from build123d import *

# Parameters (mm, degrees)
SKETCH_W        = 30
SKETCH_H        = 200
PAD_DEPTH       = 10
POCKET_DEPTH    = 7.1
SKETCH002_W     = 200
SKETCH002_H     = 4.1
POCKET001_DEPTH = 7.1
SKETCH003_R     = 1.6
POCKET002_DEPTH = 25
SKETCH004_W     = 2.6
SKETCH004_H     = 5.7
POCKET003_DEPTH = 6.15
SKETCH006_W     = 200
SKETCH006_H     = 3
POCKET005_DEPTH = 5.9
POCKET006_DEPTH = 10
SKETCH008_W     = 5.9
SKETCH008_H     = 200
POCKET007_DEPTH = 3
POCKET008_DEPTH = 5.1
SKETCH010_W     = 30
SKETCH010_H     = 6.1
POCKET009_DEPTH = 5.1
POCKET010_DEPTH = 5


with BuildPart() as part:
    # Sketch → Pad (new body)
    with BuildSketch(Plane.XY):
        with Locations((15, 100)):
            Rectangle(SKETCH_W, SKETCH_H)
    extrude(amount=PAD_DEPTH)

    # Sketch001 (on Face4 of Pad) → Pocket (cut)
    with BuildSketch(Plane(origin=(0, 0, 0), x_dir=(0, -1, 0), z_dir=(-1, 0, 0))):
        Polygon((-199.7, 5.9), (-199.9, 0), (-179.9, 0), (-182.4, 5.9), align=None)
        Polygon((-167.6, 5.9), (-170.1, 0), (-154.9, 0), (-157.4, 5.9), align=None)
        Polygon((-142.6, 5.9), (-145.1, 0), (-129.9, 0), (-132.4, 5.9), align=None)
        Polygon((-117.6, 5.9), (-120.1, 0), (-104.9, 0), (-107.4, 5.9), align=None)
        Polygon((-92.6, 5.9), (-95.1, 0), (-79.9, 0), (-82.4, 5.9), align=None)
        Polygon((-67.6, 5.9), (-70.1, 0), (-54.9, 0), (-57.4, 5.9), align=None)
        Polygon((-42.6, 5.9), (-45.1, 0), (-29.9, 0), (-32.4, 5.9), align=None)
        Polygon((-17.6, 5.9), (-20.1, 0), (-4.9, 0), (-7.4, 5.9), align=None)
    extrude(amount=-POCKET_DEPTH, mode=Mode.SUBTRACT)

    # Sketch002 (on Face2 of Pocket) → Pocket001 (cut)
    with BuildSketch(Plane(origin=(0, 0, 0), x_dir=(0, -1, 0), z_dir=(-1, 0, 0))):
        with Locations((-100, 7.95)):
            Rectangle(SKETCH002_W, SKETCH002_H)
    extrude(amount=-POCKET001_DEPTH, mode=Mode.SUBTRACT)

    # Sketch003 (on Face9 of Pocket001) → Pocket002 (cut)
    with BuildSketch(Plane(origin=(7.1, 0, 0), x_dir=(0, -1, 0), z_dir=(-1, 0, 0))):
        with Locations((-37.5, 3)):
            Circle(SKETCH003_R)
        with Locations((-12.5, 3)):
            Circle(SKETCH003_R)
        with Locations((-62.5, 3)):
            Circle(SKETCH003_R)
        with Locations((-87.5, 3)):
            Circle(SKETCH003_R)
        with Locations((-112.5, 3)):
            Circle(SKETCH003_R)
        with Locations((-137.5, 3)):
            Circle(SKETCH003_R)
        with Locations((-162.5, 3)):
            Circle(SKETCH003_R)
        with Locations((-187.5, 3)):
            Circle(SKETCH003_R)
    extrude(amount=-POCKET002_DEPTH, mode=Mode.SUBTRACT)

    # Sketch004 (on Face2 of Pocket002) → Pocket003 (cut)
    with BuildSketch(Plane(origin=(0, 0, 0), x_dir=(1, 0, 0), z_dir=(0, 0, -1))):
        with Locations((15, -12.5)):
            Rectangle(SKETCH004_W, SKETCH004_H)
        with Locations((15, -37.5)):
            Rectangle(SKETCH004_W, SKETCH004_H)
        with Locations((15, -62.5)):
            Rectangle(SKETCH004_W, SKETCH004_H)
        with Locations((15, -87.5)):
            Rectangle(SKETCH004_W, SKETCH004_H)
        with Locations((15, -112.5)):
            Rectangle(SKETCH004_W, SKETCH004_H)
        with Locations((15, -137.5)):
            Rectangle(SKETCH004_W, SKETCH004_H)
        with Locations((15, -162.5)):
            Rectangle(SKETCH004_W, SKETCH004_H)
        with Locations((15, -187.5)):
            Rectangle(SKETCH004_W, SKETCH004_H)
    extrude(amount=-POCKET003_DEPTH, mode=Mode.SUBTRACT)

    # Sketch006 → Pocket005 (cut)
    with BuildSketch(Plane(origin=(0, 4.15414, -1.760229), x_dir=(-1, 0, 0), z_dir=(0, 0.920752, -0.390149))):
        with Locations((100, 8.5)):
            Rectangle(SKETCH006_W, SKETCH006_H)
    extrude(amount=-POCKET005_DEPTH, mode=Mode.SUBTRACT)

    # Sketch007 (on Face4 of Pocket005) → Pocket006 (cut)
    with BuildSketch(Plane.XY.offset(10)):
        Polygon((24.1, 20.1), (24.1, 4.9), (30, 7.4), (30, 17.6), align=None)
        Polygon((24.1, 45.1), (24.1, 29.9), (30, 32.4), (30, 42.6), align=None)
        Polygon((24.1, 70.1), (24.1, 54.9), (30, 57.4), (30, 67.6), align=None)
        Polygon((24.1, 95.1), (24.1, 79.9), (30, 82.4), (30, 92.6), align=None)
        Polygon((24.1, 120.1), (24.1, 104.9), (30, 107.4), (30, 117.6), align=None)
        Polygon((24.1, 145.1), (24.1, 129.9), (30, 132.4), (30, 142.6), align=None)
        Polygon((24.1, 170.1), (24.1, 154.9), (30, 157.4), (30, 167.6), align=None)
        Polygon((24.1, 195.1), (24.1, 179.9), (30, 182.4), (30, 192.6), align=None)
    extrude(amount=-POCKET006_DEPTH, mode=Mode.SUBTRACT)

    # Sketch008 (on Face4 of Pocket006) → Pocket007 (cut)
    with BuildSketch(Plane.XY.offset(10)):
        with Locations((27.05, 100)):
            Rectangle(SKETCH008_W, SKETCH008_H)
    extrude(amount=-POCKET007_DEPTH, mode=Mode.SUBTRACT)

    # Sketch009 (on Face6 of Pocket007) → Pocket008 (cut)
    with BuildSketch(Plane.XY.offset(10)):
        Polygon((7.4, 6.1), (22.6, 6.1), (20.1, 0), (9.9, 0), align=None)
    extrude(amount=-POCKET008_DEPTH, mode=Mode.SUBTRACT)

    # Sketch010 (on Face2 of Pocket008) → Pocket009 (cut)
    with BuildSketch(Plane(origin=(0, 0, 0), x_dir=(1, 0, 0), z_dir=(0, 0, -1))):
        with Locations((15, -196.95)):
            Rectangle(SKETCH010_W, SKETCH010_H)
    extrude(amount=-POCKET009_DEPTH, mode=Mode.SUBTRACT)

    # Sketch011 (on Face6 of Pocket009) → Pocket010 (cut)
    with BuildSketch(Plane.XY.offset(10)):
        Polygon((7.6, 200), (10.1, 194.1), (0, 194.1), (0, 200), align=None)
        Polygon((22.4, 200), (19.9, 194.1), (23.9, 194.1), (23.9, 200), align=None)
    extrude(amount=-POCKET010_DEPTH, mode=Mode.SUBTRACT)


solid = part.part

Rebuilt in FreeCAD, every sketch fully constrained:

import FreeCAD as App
import Part
import Sketcher
Q = App.Units.Quantity

doc = App.newDocument("Part")
body = doc.addObject("PartDesign::Body", "Body")

# Sketch on XY plane
sketch1 = body.newObject("Sketcher::SketchObject", "Sketch")
sketch1.AttachmentSupport = (doc.getObject("XY_Plane"), [""])
sketch1.MapMode = "FlatFace"
sketch1.addGeometry(Part.LineSegment(App.Vector(0, 200, 0), App.Vector(0, 0, 0)), False)
sketch1.addGeometry(Part.LineSegment(App.Vector(0, 0, 0), App.Vector(30, 0, 0)), False)
sketch1.addGeometry(Part.LineSegment(App.Vector(30, 0, 0), App.Vector(30, 200, 0)), False)
sketch1.addGeometry(Part.LineSegment(App.Vector(30, 200, 0), App.Vector(0, 200, 0)), False)
sketch1.addConstraint(Sketcher.Constraint("Coincident", 0, 2, 1, 1))
sketch1.addConstraint(Sketcher.Constraint("Coincident", 1, 2, 2, 1))
sketch1.addConstraint(Sketcher.Constraint("Coincident", 2, 2, 3, 1))
sketch1.addConstraint(Sketcher.Constraint("Coincident", 3, 2, 0, 1))
sketch1.addConstraint(Sketcher.Constraint("Vertical", 0))
sketch1.addConstraint(Sketcher.Constraint("Horizontal", 1))
sketch1.addConstraint(Sketcher.Constraint("Vertical", 2))
sketch1.addConstraint(Sketcher.Constraint("Horizontal", 3))
sketch1.addConstraint(Sketcher.Constraint("Coincident", 0, 2, -1, 1))
sketch1.addConstraint(Sketcher.Constraint("DistanceX", 1, 1, 1, 2, Q("30 mm")))
sketch1.addConstraint(Sketcher.Constraint("DistanceY", 0, 2, 0, 1, Q("200 mm")))
pad1 = body.newObject("PartDesign::Pad", "Pad")
pad1.Profile = sketch1
pad1.Length = 10

# Sketch on YZ plane
sketch2 = body.newObject("Sketcher::SketchObject", "Sketch001")
sketch2.AttachmentSupport = (doc.getObject("YZ_Plane"), [""])
sketch2.MapMode = "FlatFace"
sketch2.addGeometry(Part.LineSegment(App.Vector(200, 6, 0), App.Vector(200, 0, 0)), False)
sketch2.addGeometry(Part.LineSegment(App.Vector(200, 0, 0), App.Vector(180, 0, 0)), False)
sketch2.addGeometry(Part.LineSegment(App.Vector(180, 0, 0), App.Vector(182, 6, 0)), False)
sketch2.addGeometry(Part.LineSegment(App.Vector(182, 6, 0), App.Vector(200, 6, 0)), False)
sketch2.addGeometry(Part.LineSegment(App.Vector(168, 6, 0), App.Vector(170, 0, 0)), False)
sketch2.addGeometry(Part.LineSegment(App.Vector(170, 0, 0), App.Vector(155, 0, 0)), False)
sketch2.addGeometry(Part.LineSegment(App.Vector(155, 0, 0), App.Vector(157, 6, 0)), False)
sketch2.addGeometry(Part.LineSegment(App.Vector(157, 6, 0), App.Vector(168, 6, 0)), False)
sketch2.addGeometry(Part.LineSegment(App.Vector(143, 6, 0), App.Vector(145, 0, 0)), False)
sketch2.addGeometry(Part.LineSegment(App.Vector(145, 0, 0), App.Vector(130, 0, 0)), False)
sketch2.addGeometry(Part.LineSegment(App.Vector(130, 0, 0), App.Vector(132, 6, 0)), False)
sketch2.addGeometry(Part.LineSegment(App.Vector(132, 6, 0), App.Vector(143, 6, 0)), False)
sketch2.addGeometry(Part.LineSegment(App.Vector(118, 6, 0), App.Vector(120, 0, 0)), False)
sketch2.addGeometry(Part.LineSegment(App.Vector(120, 0, 0), App.Vector(105, 0, 0)), False)
sketch2.addGeometry(Part.LineSegment(App.Vector(105, 0, 0), App.Vector(107, 6, 0)), False)
sketch2.addGeometry(Part.LineSegment(App.Vector(107, 6, 0), App.Vector(118, 6, 0)), False)
sketch2.addGeometry(Part.LineSegment(App.Vector(93, 6, 0), App.Vector(95, 0, 0)), False)
sketch2.addGeometry(Part.LineSegment(App.Vector(95, 0, 0), App.Vector(80, 0, 0)), False)
sketch2.addGeometry(Part.LineSegment(App.Vector(80, 0, 0), App.Vector(82, 6, 0)), False)
sketch2.addGeometry(Part.LineSegment(App.Vector(82, 6, 0), App.Vector(93, 6, 0)), False)
sketch2.addGeometry(Part.LineSegment(App.Vector(68, 6, 0), App.Vector(70, 0, 0)), False)
sketch2.addGeometry(Part.LineSegment(App.Vector(70, 0, 0), App.Vector(55, 0, 0)), False)
sketch2.addGeometry(Part.LineSegment(App.Vector(55, 0, 0), App.Vector(57, 6, 0)), False)
sketch2.addGeometry(Part.LineSegment(App.Vector(57, 6, 0), App.Vector(68, 6, 0)), False)
sketch2.addGeometry(Part.LineSegment(App.Vector(43, 6, 0), App.Vector(45, 0, 0)), False)
sketch2.addGeometry(Part.LineSegment(App.Vector(45, 0, 0), App.Vector(30, 0, 0)), False)
sketch2.addGeometry(Part.LineSegment(App.Vector(30, 0, 0), App.Vector(32, 6, 0)), False)
sketch2.addGeometry(Part.LineSegment(App.Vector(32, 6, 0), App.Vector(43, 6, 0)), False)
sketch2.addGeometry(Part.LineSegment(App.Vector(18, 6, 0), App.Vector(20, 0, 0)), False)
sketch2.addGeometry(Part.LineSegment(App.Vector(20, 0, 0), App.Vector(5, 0, 0)), False)
sketch2.addGeometry(Part.LineSegment(App.Vector(5, 0, 0), App.Vector(7, 6, 0)), False)
sketch2.addGeometry(Part.LineSegment(App.Vector(7, 6, 0), App.Vector(18, 6, 0)), False)
sketch2.addConstraint(Sketcher.Constraint("Coincident", 0, 2, 1, 1))
sketch2.addConstraint(Sketcher.Constraint("Coincident", 1, 2, 2, 1))
sketch2.addConstraint(Sketcher.Constraint("Coincident", 2, 2, 3, 1))
sketch2.addConstraint(Sketcher.Constraint("Coincident", 3, 2, 0, 1))
sketch2.addConstraint(Sketcher.Constraint("Coincident", 4, 2, 5, 1))
sketch2.addConstraint(Sketcher.Constraint("Coincident", 5, 2, 6, 1))
sketch2.addConstraint(Sketcher.Constraint("Coincident", 6, 2, 7, 1))
sketch2.addConstraint(Sketcher.Constraint("Coincident", 7, 2, 4, 1))
sketch2.addConstraint(Sketcher.Constraint("Coincident", 8, 2, 9, 1))
sketch2.addConstraint(Sketcher.Constraint("Coincident", 9, 2, 10, 1))
sketch2.addConstraint(Sketcher.Constraint("Coincident", 10, 2, 11, 1))
sketch2.addConstraint(Sketcher.Constraint("Coincident", 11, 2, 8, 1))
sketch2.addConstraint(Sketcher.Constraint("Coincident", 12, 2, 13, 1))
sketch2.addConstraint(Sketcher.Constraint("Coincident", 13, 2, 14, 1))
sketch2.addConstraint(Sketcher.Constraint("Coincident", 14, 2, 15, 1))
sketch2.addConstraint(Sketcher.Constraint("Coincident", 15, 2, 12, 1))
sketch2.addConstraint(Sketcher.Constraint("Coincident", 16, 2, 17, 1))
sketch2.addConstraint(Sketcher.Constraint("Coincident", 17, 2, 18, 1))
sketch2.addConstraint(Sketcher.Constraint("Coincident", 18, 2, 19, 1))
sketch2.addConstraint(Sketcher.Constraint("Coincident", 19, 2, 16, 1))
sketch2.addConstraint(Sketcher.Constraint("Coincident", 20, 2, 21, 1))
sketch2.addConstraint(Sketcher.Constraint("Coincident", 21, 2, 22, 1))
sketch2.addConstraint(Sketcher.Constraint("Coincident", 22, 2, 23, 1))
sketch2.addConstraint(Sketcher.Constraint("Coincident", 23, 2, 20, 1))
sketch2.addConstraint(Sketcher.Constraint("Coincident", 24, 2, 25, 1))
sketch2.addConstraint(Sketcher.Constraint("Coincident", 25, 2, 26, 1))
sketch2.addConstraint(Sketcher.Constraint("Coincident", 26, 2, 27, 1))
sketch2.addConstraint(Sketcher.Constraint("Coincident", 27, 2, 24, 1))
sketch2.addConstraint(Sketcher.Constraint("Coincident", 28, 2, 29, 1))
sketch2.addConstraint(Sketcher.Constraint("Coincident", 29, 2, 30, 1))
sketch2.addConstraint(Sketcher.Constraint("Coincident", 30, 2, 31, 1))
sketch2.addConstraint(Sketcher.Constraint("Coincident", 31, 2, 28, 1))
sketch2.addConstraint(Sketcher.Constraint("Horizontal", 1))
sketch2.addConstraint(Sketcher.Constraint("Horizontal", 3))
sketch2.addConstraint(Sketcher.Constraint("Horizontal", 5))
sketch2.addConstraint(Sketcher.Constraint("Horizontal", 7))
sketch2.addConstraint(Sketcher.Constraint("Horizontal", 9))
sketch2.addConstraint(Sketcher.Constraint("Horizontal", 11))
sketch2.addConstraint(Sketcher.Constraint("Horizontal", 13))
sketch2.addConstraint(Sketcher.Constraint("Horizontal", 15))
sketch2.addConstraint(Sketcher.Constraint("Horizontal", 17))
sketch2.addConstraint(Sketcher.Constraint("Horizontal", 19))
sketch2.addConstraint(Sketcher.Constraint("Horizontal", 21))
sketch2.addConstraint(Sketcher.Constraint("Horizontal", 23))
sketch2.addConstraint(Sketcher.Constraint("Horizontal", 25))
sketch2.addConstraint(Sketcher.Constraint("Horizontal", 27))
sketch2.addConstraint(Sketcher.Constraint("Horizontal", 29))
sketch2.addConstraint(Sketcher.Constraint("Horizontal", 31))
sketch2.addConstraint(Sketcher.Constraint("PointOnObject", 0, 2, -1))
sketch2.addConstraint(Sketcher.Constraint("PointOnObject", 4, 2, -1))
sketch2.addConstraint(Sketcher.Constraint("PointOnObject", 8, 2, -1))
sketch2.addConstraint(Sketcher.Constraint("PointOnObject", 12, 2, -1))
sketch2.addConstraint(Sketcher.Constraint("PointOnObject", 16, 2, -1))
sketch2.addConstraint(Sketcher.Constraint("PointOnObject", 20, 2, -1))
sketch2.addConstraint(Sketcher.Constraint("PointOnObject", 24, 2, -1))
sketch2.addConstraint(Sketcher.Constraint("PointOnObject", 28, 2, -1))
sketch2.addConstraint(Sketcher.Constraint("Parallel", 2, 6))
sketch2.addConstraint(Sketcher.Constraint("Parallel", 4, 8))
sketch2.addConstraint(Sketcher.Constraint("Parallel", 6, 10))
sketch2.addConstraint(Sketcher.Constraint("Parallel", 8, 12))
sketch2.addConstraint(Sketcher.Constraint("Parallel", 10, 14))
sketch2.addConstraint(Sketcher.Constraint("Parallel", 12, 16))
sketch2.addConstraint(Sketcher.Constraint("Parallel", 14, 18))
sketch2.addConstraint(Sketcher.Constraint("Parallel", 16, 20))
sketch2.addConstraint(Sketcher.Constraint("Parallel", 18, 22))
sketch2.addConstraint(Sketcher.Constraint("Parallel", 20, 24))
sketch2.addConstraint(Sketcher.Constraint("Parallel", 22, 26))
sketch2.addConstraint(Sketcher.Constraint("Parallel", 24, 28))
sketch2.addConstraint(Sketcher.Constraint("Parallel", 26, 30))
sketch2.addConstraint(Sketcher.Constraint("Horizontal", 3, 2, 6, 2))
sketch2.addConstraint(Sketcher.Constraint("Horizontal", 7, 2, 10, 2))
sketch2.addConstraint(Sketcher.Constraint("Horizontal", 11, 2, 14, 2))
sketch2.addConstraint(Sketcher.Constraint("Horizontal", 15, 2, 18, 2))
sketch2.addConstraint(Sketcher.Constraint("Horizontal", 19, 2, 22, 2))
sketch2.addConstraint(Sketcher.Constraint("Horizontal", 23, 2, 26, 2))
sketch2.addConstraint(Sketcher.Constraint("Horizontal", 27, 2, 30, 2))
sketch2.addConstraint(Sketcher.Constraint("Equal", 5, 9))
sketch2.addConstraint(Sketcher.Constraint("Equal", 9, 13))
sketch2.addConstraint(Sketcher.Constraint("Equal", 13, 17))
sketch2.addConstraint(Sketcher.Constraint("Equal", 17, 21))
sketch2.addConstraint(Sketcher.Constraint("Equal", 21, 25))
sketch2.addConstraint(Sketcher.Constraint("Equal", 25, 29))
sketch2.addConstraint(Sketcher.Constraint("Equal", 2, 4))
sketch2.addConstraint(Sketcher.Constraint("DistanceX", 1, 2, 1, 1, Q("20 mm")))
sketch2.addConstraint(Sketcher.Constraint("DistanceX", 3, 1, 3, 2, Q("17.3 mm")))
sketch2.addConstraint(Sketcher.Constraint("DistanceX", 5, 2, 5, 1, Q("15.2 mm")))
sketch2.addConstraint(Sketcher.Constraint("DistanceX", 7, 1, 7, 2, Q("10.2 mm")))
sketch2.addConstraint(Sketcher.Constraint("DistanceX", 5, 2, 1, 2, Q("25 mm")))
sketch2.addConstraint(Sketcher.Constraint("DistanceX", 8, 2, 4, 2, Q("25 mm")))
sketch2.addConstraint(Sketcher.Constraint("DistanceX", 12, 2, 8, 2, Q("25 mm")))
sketch2.addConstraint(Sketcher.Constraint("DistanceX", 16, 2, 12, 2, Q("25 mm")))
sketch2.addConstraint(Sketcher.Constraint("DistanceX", 20, 2, 16, 2, Q("25 mm")))
sketch2.addConstraint(Sketcher.Constraint("DistanceX", 24, 2, 20, 2, Q("25 mm")))
sketch2.addConstraint(Sketcher.Constraint("DistanceX", 28, 2, 24, 2, Q("25 mm")))
sketch2.addConstraint(Sketcher.Constraint("DistanceX", -1, 1, 0, 2, Q("199.9 mm")))
sketch2.addConstraint(Sketcher.Constraint("DistanceY", -1, 1, 2, 2, Q("5.9 mm")))
pocket1 = body.newObject("PartDesign::Pocket", "Pocket")
pocket1.Profile = sketch2
pocket1.Length = 7.1
pocket1.Reversed = True

# Sketch on YZ plane
sketch3 = body.newObject("Sketcher::SketchObject", "Sketch002")
sketch3.AttachmentSupport = (doc.getObject("YZ_Plane"), [""])
sketch3.MapMode = "FlatFace"
sketch3.addGeometry(Part.LineSegment(App.Vector(200, 10, 0), App.Vector(200, 5.9, 0)), False)
sketch3.addGeometry(Part.LineSegment(App.Vector(200, 5.9, 0), App.Vector(0, 5.9, 0)), False)
sketch3.addGeometry(Part.LineSegment(App.Vector(0, 5.9, 0), App.Vector(0, 10, 0)), False)
sketch3.addGeometry(Part.LineSegment(App.Vector(0, 10, 0), App.Vector(200, 10, 0)), False)
sketch3.addConstraint(Sketcher.Constraint("Coincident", 0, 2, 1, 1))
sketch3.addConstraint(Sketcher.Constraint("Coincident", 1, 2, 2, 1))
sketch3.addConstraint(Sketcher.Constraint("Coincident", 2, 2, 3, 1))
sketch3.addConstraint(Sketcher.Constraint("Coincident", 3, 2, 0, 1))
sketch3.addConstraint(Sketcher.Constraint("Vertical", 0))
sketch3.addConstraint(Sketcher.Constraint("Horizontal", 1))
sketch3.addConstraint(Sketcher.Constraint("Vertical", 2))
sketch3.addConstraint(Sketcher.Constraint("Horizontal", 3))
sketch3.addConstraint(Sketcher.Constraint("PointOnObject", 1, 2, -2))
sketch3.addConstraint(Sketcher.Constraint("DistanceX", 1, 2, 1, 1, Q("200 mm")))
sketch3.addConstraint(Sketcher.Constraint("DistanceY", 0, 2, 0, 1, Q("4.1 mm")))
sketch3.addConstraint(Sketcher.Constraint("DistanceY", -1, 1, 2, 2, Q("10 mm")))
pocket2 = body.newObject("PartDesign::Pocket", "Pocket001")
pocket2.Profile = sketch3
pocket2.Length = 7.1
pocket2.Reversed = True

# Sketch on YZ plane
sketch4 = body.newObject("Sketcher::SketchObject", "Sketch003")
sketch4.AttachmentSupport = (doc.getObject("YZ_Plane"), [""])
sketch4.MapMode = "FlatFace"
sketch4.AttachmentOffset = App.Placement(App.Vector(0, 0, 7.1), App.Rotation())
sketch4.addGeometry(Part.Circle(App.Vector(37.5, 3, 0), App.Vector(0, 0, 1), 1.6), False)
sketch4.addGeometry(Part.Circle(App.Vector(12.5, 3, 0), App.Vector(0, 0, 1), 1.6), False)
sketch4.addGeometry(Part.Circle(App.Vector(62.5, 3, 0), App.Vector(0, 0, 1), 1.6), False)
sketch4.addGeometry(Part.Circle(App.Vector(87.5, 3, 0), App.Vector(0, 0, 1), 1.6), False)
sketch4.addGeometry(Part.Circle(App.Vector(112.5, 3, 0), App.Vector(0, 0, 1), 1.6), False)
sketch4.addGeometry(Part.Circle(App.Vector(137.5, 3, 0), App.Vector(0, 0, 1), 1.6), False)
sketch4.addGeometry(Part.Circle(App.Vector(162.5, 3, 0), App.Vector(0, 0, 1), 1.6), False)
sketch4.addGeometry(Part.Circle(App.Vector(187.5, 3, 0), App.Vector(0, 0, 1), 1.6), False)
sketch4.addConstraint(Sketcher.Constraint("Equal", 0, 1))
sketch4.addConstraint(Sketcher.Constraint("Equal", 1, 2))
sketch4.addConstraint(Sketcher.Constraint("Equal", 2, 3))
sketch4.addConstraint(Sketcher.Constraint("Equal", 3, 4))
sketch4.addConstraint(Sketcher.Constraint("Equal", 4, 5))
sketch4.addConstraint(Sketcher.Constraint("Equal", 5, 6))
sketch4.addConstraint(Sketcher.Constraint("Equal", 6, 7))
sketch4.addConstraint(Sketcher.Constraint("Horizontal", 0, 3, 1, 3))
sketch4.addConstraint(Sketcher.Constraint("Horizontal", 1, 3, 2, 3))
sketch4.addConstraint(Sketcher.Constraint("Horizontal", 2, 3, 3, 3))
sketch4.addConstraint(Sketcher.Constraint("Horizontal", 3, 3, 4, 3))
sketch4.addConstraint(Sketcher.Constraint("Horizontal", 4, 3, 5, 3))
sketch4.addConstraint(Sketcher.Constraint("Horizontal", 5, 3, 6, 3))
sketch4.addConstraint(Sketcher.Constraint("Horizontal", 6, 3, 7, 3))
sketch4.addConstraint(Sketcher.Constraint("Diameter", 0, Q("3.2 mm")))
sketch4.addConstraint(Sketcher.Constraint("DistanceY", -1, 1, 0, 3, Q("3 mm")))
sketch4.addConstraint(Sketcher.Constraint("DistanceX", 1, 3, 0, 3, Q("25 mm")))
sketch4.addConstraint(Sketcher.Constraint("DistanceX", 0, 3, 2, 3, Q("25 mm")))
sketch4.addConstraint(Sketcher.Constraint("DistanceX", 2, 3, 3, 3, Q("25 mm")))
sketch4.addConstraint(Sketcher.Constraint("DistanceX", 3, 3, 4, 3, Q("25 mm")))
sketch4.addConstraint(Sketcher.Constraint("DistanceX", 4, 3, 5, 3, Q("25 mm")))
sketch4.addConstraint(Sketcher.Constraint("DistanceX", 5, 3, 6, 3, Q("25 mm")))
sketch4.addConstraint(Sketcher.Constraint("DistanceX", 6, 3, 7, 3, Q("25 mm")))
sketch4.addConstraint(Sketcher.Constraint("DistanceX", -1, 1, 0, 3, Q("37.5 mm")))
pocket3 = body.newObject("PartDesign::Pocket", "Pocket002")
pocket3.Profile = sketch4
pocket3.Length = 25
pocket3.Reversed = True

# Sketch on XY plane
sketch5 = body.newObject("Sketcher::SketchObject", "Sketch004")
sketch5.AttachmentSupport = (doc.getObject("XY_Plane"), [""])
sketch5.MapMode = "FlatFace"
sketch5.addGeometry(Part.LineSegment(App.Vector(13.7, 9.7, 0), App.Vector(13.7, 15.3, 0)), False)
sketch5.addGeometry(Part.LineSegment(App.Vector(13.7, 15.3, 0), App.Vector(16.3, 15.3, 0)), False)
sketch5.addGeometry(Part.LineSegment(App.Vector(16.3, 15.3, 0), App.Vector(16.3, 9.7, 0)), False)
sketch5.addGeometry(Part.LineSegment(App.Vector(16.3, 9.7, 0), App.Vector(13.7, 9.7, 0)), False)
sketch5.addGeometry(Part.LineSegment(App.Vector(13.7, 34.6, 0), App.Vector(13.7, 40.4, 0)), False)
sketch5.addGeometry(Part.LineSegment(App.Vector(13.7, 40.4, 0), App.Vector(16.3, 40.4, 0)), False)
sketch5.addGeometry(Part.LineSegment(App.Vector(16.3, 40.4, 0), App.Vector(16.3, 34.6, 0)), False)
sketch5.addGeometry(Part.LineSegment(App.Vector(16.3, 34.6, 0), App.Vector(13.7, 34.6, 0)), False)
sketch5.addGeometry(Part.LineSegment(App.Vector(13.7, 59.6, 0), App.Vector(13.7, 65.3, 0)), False)
sketch5.addGeometry(Part.LineSegment(App.Vector(13.7, 65.3, 0), App.Vector(16.3, 65.3, 0)), False)
sketch5.addGeometry(Part.LineSegment(App.Vector(16.3, 65.3, 0), App.Vector(16.3, 59.6, 0)), False)
sketch5.addGeometry(Part.LineSegment(App.Vector(16.3, 59.6, 0), App.Vector(13.7, 59.6, 0)), False)
sketch5.addGeometry(Part.LineSegment(App.Vector(13.7, 84.7, 0), App.Vector(13.7, 90.3, 0)), False)
sketch5.addGeometry(Part.LineSegment(App.Vector(13.7, 90.3, 0), App.Vector(16.3, 90.3, 0)), False)
sketch5.addGeometry(Part.LineSegment(App.Vector(16.3, 90.3, 0), App.Vector(16.3, 84.7, 0)), False)
sketch5.addGeometry(Part.LineSegment(App.Vector(16.3, 84.7, 0), App.Vector(13.7, 84.7, 0)), False)
sketch5.addGeometry(Part.LineSegment(App.Vector(13.7, 109.7, 0), App.Vector(13.7, 115.3, 0)), False)
sketch5.addGeometry(Part.LineSegment(App.Vector(13.7, 115.3, 0), App.Vector(16.3, 115.3, 0)), False)
sketch5.addGeometry(Part.LineSegment(App.Vector(16.3, 115.3, 0), App.Vector(16.3, 109.7, 0)), False)
sketch5.addGeometry(Part.LineSegment(App.Vector(16.3, 109.7, 0), App.Vector(13.7, 109.7, 0)), False)
sketch5.addGeometry(Part.LineSegment(App.Vector(13.7, 134.7, 0), App.Vector(13.7, 140.3, 0)), False)
sketch5.addGeometry(Part.LineSegment(App.Vector(13.7, 140.3, 0), App.Vector(16.3, 140.3, 0)), False)
sketch5.addGeometry(Part.LineSegment(App.Vector(16.3, 140.3, 0), App.Vector(16.3, 134.7, 0)), False)
sketch5.addGeometry(Part.LineSegment(App.Vector(16.3, 134.7, 0), App.Vector(13.7, 134.7, 0)), False)
sketch5.addGeometry(Part.LineSegment(App.Vector(13.7, 159.7, 0), App.Vector(13.7, 165.3, 0)), False)
sketch5.addGeometry(Part.LineSegment(App.Vector(13.7, 165.3, 0), App.Vector(16.3, 165.3, 0)), False)
sketch5.addGeometry(Part.LineSegment(App.Vector(16.3, 165.3, 0), App.Vector(16.3, 159.7, 0)), False)
sketch5.addGeometry(Part.LineSegment(App.Vector(16.3, 159.7, 0), App.Vector(13.7, 159.7, 0)), False)
sketch5.addGeometry(Part.LineSegment(App.Vector(13.7, 184.7, 0), App.Vector(13.7, 190.3, 0)), False)
sketch5.addGeometry(Part.LineSegment(App.Vector(13.7, 190.3, 0), App.Vector(16.3, 190.3, 0)), False)
sketch5.addGeometry(Part.LineSegment(App.Vector(16.3, 190.3, 0), App.Vector(16.3, 184.7, 0)), False)
sketch5.addGeometry(Part.LineSegment(App.Vector(16.3, 184.7, 0), App.Vector(13.7, 184.7, 0)), False)
sketch5.addConstraint(Sketcher.Constraint("Coincident", 0, 2, 1, 1))
sketch5.addConstraint(Sketcher.Constraint("Coincident", 1, 2, 2, 1))
sketch5.addConstraint(Sketcher.Constraint("Coincident", 2, 2, 3, 1))
sketch5.addConstraint(Sketcher.Constraint("Coincident", 3, 2, 0, 1))
sketch5.addConstraint(Sketcher.Constraint("Coincident", 4, 2, 5, 1))
sketch5.addConstraint(Sketcher.Constraint("Coincident", 5, 2, 6, 1))
sketch5.addConstraint(Sketcher.Constraint("Coincident", 6, 2, 7, 1))
sketch5.addConstraint(Sketcher.Constraint("Coincident", 7, 2, 4, 1))
sketch5.addConstraint(Sketcher.Constraint("Coincident", 8, 2, 9, 1))
sketch5.addConstraint(Sketcher.Constraint("Coincident", 9, 2, 10, 1))
sketch5.addConstraint(Sketcher.Constraint("Coincident", 10, 2, 11, 1))
sketch5.addConstraint(Sketcher.Constraint("Coincident", 11, 2, 8, 1))
sketch5.addConstraint(Sketcher.Constraint("Coincident", 12, 2, 13, 1))
sketch5.addConstraint(Sketcher.Constraint("Coincident", 13, 2, 14, 1))
sketch5.addConstraint(Sketcher.Constraint("Coincident", 14, 2, 15, 1))
sketch5.addConstraint(Sketcher.Constraint("Coincident", 15, 2, 12, 1))
sketch5.addConstraint(Sketcher.Constraint("Coincident", 16, 2, 17, 1))
sketch5.addConstraint(Sketcher.Constraint("Coincident", 17, 2, 18, 1))
sketch5.addConstraint(Sketcher.Constraint("Coincident", 18, 2, 19, 1))
sketch5.addConstraint(Sketcher.Constraint("Coincident", 19, 2, 16, 1))
sketch5.addConstraint(Sketcher.Constraint("Coincident", 20, 2, 21, 1))
sketch5.addConstraint(Sketcher.Constraint("Coincident", 21, 2, 22, 1))
sketch5.addConstraint(Sketcher.Constraint("Coincident", 22, 2, 23, 1))
sketch5.addConstraint(Sketcher.Constraint("Coincident", 23, 2, 20, 1))
sketch5.addConstraint(Sketcher.Constraint("Coincident", 24, 2, 25, 1))
sketch5.addConstraint(Sketcher.Constraint("Coincident", 25, 2, 26, 1))
sketch5.addConstraint(Sketcher.Constraint("Coincident", 26, 2, 27, 1))
sketch5.addConstraint(Sketcher.Constraint("Coincident", 27, 2, 24, 1))
sketch5.addConstraint(Sketcher.Constraint("Coincident", 28, 2, 29, 1))
sketch5.addConstraint(Sketcher.Constraint("Coincident", 29, 2, 30, 1))
sketch5.addConstraint(Sketcher.Constraint("Coincident", 30, 2, 31, 1))
sketch5.addConstraint(Sketcher.Constraint("Coincident", 31, 2, 28, 1))
sketch5.addConstraint(Sketcher.Constraint("Vertical", 0))
sketch5.addConstraint(Sketcher.Constraint("Horizontal", 1))
sketch5.addConstraint(Sketcher.Constraint("Vertical", 2))
sketch5.addConstraint(Sketcher.Constraint("Horizontal", 3))
sketch5.addConstraint(Sketcher.Constraint("Vertical", 4))
sketch5.addConstraint(Sketcher.Constraint("Horizontal", 5))
sketch5.addConstraint(Sketcher.Constraint("Vertical", 6))
sketch5.addConstraint(Sketcher.Constraint("Horizontal", 7))
sketch5.addConstraint(Sketcher.Constraint("Vertical", 8))
sketch5.addConstraint(Sketcher.Constraint("Horizontal", 9))
sketch5.addConstraint(Sketcher.Constraint("Vertical", 10))
sketch5.addConstraint(Sketcher.Constraint("Horizontal", 11))
sketch5.addConstraint(Sketcher.Constraint("Vertical", 12))
sketch5.addConstraint(Sketcher.Constraint("Horizontal", 13))
sketch5.addConstraint(Sketcher.Constraint("Vertical", 14))
sketch5.addConstraint(Sketcher.Constraint("Horizontal", 15))
sketch5.addConstraint(Sketcher.Constraint("Vertical", 16))
sketch5.addConstraint(Sketcher.Constraint("Horizontal", 17))
sketch5.addConstraint(Sketcher.Constraint("Vertical", 18))
sketch5.addConstraint(Sketcher.Constraint("Horizontal", 19))
sketch5.addConstraint(Sketcher.Constraint("Vertical", 20))
sketch5.addConstraint(Sketcher.Constraint("Horizontal", 21))
sketch5.addConstraint(Sketcher.Constraint("Vertical", 22))
sketch5.addConstraint(Sketcher.Constraint("Horizontal", 23))
sketch5.addConstraint(Sketcher.Constraint("Vertical", 24))
sketch5.addConstraint(Sketcher.Constraint("Horizontal", 25))
sketch5.addConstraint(Sketcher.Constraint("Vertical", 26))
sketch5.addConstraint(Sketcher.Constraint("Horizontal", 27))
sketch5.addConstraint(Sketcher.Constraint("Vertical", 28))
sketch5.addConstraint(Sketcher.Constraint("Horizontal", 29))
sketch5.addConstraint(Sketcher.Constraint("Vertical", 30))
sketch5.addConstraint(Sketcher.Constraint("Horizontal", 31))
sketch5.addConstraint(Sketcher.Constraint("Vertical", 3, 2, 4, 2))
sketch5.addConstraint(Sketcher.Constraint("Vertical", 2, 2, 5, 2))
sketch5.addConstraint(Sketcher.Constraint("Vertical", 7, 2, 8, 2))
sketch5.addConstraint(Sketcher.Constraint("Vertical", 6, 2, 9, 2))
sketch5.addConstraint(Sketcher.Constraint("Vertical", 11, 2, 12, 2))
sketch5.addConstraint(Sketcher.Constraint("Vertical", 10, 2, 13, 2))
sketch5.addConstraint(Sketcher.Constraint("Vertical", 15, 2, 16, 2))
sketch5.addConstraint(Sketcher.Constraint("Vertical", 14, 2, 17, 2))
sketch5.addConstraint(Sketcher.Constraint("Vertical", 19, 2, 20, 2))
sketch5.addConstraint(Sketcher.Constraint("Vertical", 18, 2, 21, 2))
sketch5.addConstraint(Sketcher.Constraint("Vertical", 23, 2, 24, 2))
sketch5.addConstraint(Sketcher.Constraint("Vertical", 22, 2, 25, 2))
sketch5.addConstraint(Sketcher.Constraint("Vertical", 27, 2, 28, 2))
sketch5.addConstraint(Sketcher.Constraint("Vertical", 26, 2, 29, 2))
sketch5.addConstraint(Sketcher.Constraint("Equal", 2, 4))
sketch5.addConstraint(Sketcher.Constraint("Equal", 6, 8))
sketch5.addConstraint(Sketcher.Constraint("Equal", 10, 12))
sketch5.addConstraint(Sketcher.Constraint("Equal", 14, 16))
sketch5.addConstraint(Sketcher.Constraint("Equal", 18, 20))
sketch5.addConstraint(Sketcher.Constraint("Equal", 22, 24))
sketch5.addConstraint(Sketcher.Constraint("Equal", 26, 28))
sketch5.addConstraint(Sketcher.Constraint("DistanceX", 1, 1, 1, 2, Q("2.6 mm")))
sketch5.addConstraint(Sketcher.Constraint("DistanceY", 0, 1, 0, 2, Q("5.7 mm")))
sketch5.addConstraint(Sketcher.Constraint("DistanceY", 0, 2, 4, 2, Q("25 mm")))
sketch5.addConstraint(Sketcher.Constraint("DistanceY", 4, 2, 8, 2, Q("25 mm")))
sketch5.addConstraint(Sketcher.Constraint("DistanceY", 8, 2, 12, 2, Q("25 mm")))
sketch5.addConstraint(Sketcher.Constraint("DistanceY", 12, 2, 16, 2, Q("25 mm")))
sketch5.addConstraint(Sketcher.Constraint("DistanceY", 16, 2, 20, 2, Q("25 mm")))
sketch5.addConstraint(Sketcher.Constraint("DistanceY", 20, 2, 24, 2, Q("25 mm")))
sketch5.addConstraint(Sketcher.Constraint("DistanceY", 24, 2, 28, 2, Q("25 mm")))
sketch5.addConstraint(Sketcher.Constraint("DistanceX", -1, 1, 0, 2, Q("13.7 mm")))
sketch5.addConstraint(Sketcher.Constraint("DistanceY", -1, 1, 0, 2, Q("15.35 mm")))
pocket4 = body.newObject("PartDesign::Pocket", "Pocket003")
pocket4.Profile = sketch5
pocket4.Length = 6.15
pocket4.Reversed = True

# Sketch on an angled plane
sketch6 = body.newObject("Sketcher::SketchObject", "Sketch005")
sketch6.Placement = App.Placement(App.Vector(0, 4.15414, -1.760229), App.Rotation(App.Vector(-1, 0, 0), App.Vector(0, 0.390148905, 0.920751775), App.Vector(0, 0.920751775, -0.390148905), "ZXY"))
sketch6.addGeometry(Part.LineSegment(App.Vector(0, 10, 0), App.Vector(0, 7, 0)), False)
sketch6.addGeometry(Part.LineSegment(App.Vector(0, 7, 0), App.Vector(200, 7, 0)), False)
sketch6.addGeometry(Part.LineSegment(App.Vector(200, 7, 0), App.Vector(200, 10, 0)), False)
sketch6.addGeometry(Part.LineSegment(App.Vector(200, 10, 0), App.Vector(0, 10, 0)), False)
sketch6.addConstraint(Sketcher.Constraint("Coincident", 0, 2, 1, 1))
sketch6.addConstraint(Sketcher.Constraint("Coincident", 1, 2, 2, 1))
sketch6.addConstraint(Sketcher.Constraint("Coincident", 2, 2, 3, 1))
sketch6.addConstraint(Sketcher.Constraint("Coincident", 3, 2, 0, 1))
sketch6.addConstraint(Sketcher.Constraint("Vertical", 0))
sketch6.addConstraint(Sketcher.Constraint("Horizontal", 1))
sketch6.addConstraint(Sketcher.Constraint("Vertical", 2))
sketch6.addConstraint(Sketcher.Constraint("Horizontal", 3))
sketch6.addConstraint(Sketcher.Constraint("PointOnObject", 0, 2, -2))
sketch6.addConstraint(Sketcher.Constraint("DistanceX", 1, 1, 1, 2, Q("200 mm")))
sketch6.addConstraint(Sketcher.Constraint("DistanceY", 0, 2, 0, 1, Q("3 mm")))
sketch6.addConstraint(Sketcher.Constraint("DistanceY", -1, 1, 0, 2, Q("7 mm")))
pocket5 = body.newObject("PartDesign::Pocket", "Pocket004")
pocket5.Profile = sketch6
pocket5.Length = 5.9

# Sketch on XY plane
sketch7 = body.newObject("Sketcher::SketchObject", "Sketch006")
sketch7.AttachmentSupport = (doc.getObject("XY_Plane"), [""])
sketch7.MapMode = "FlatFace"
sketch7.AttachmentOffset = App.Placement(App.Vector(0, 0, 10), App.Rotation())
sketch7.addGeometry(Part.LineSegment(App.Vector(24, 20, 0), App.Vector(24, 5, 0)), False)
sketch7.addGeometry(Part.LineSegment(App.Vector(24, 5, 0), App.Vector(30, 7, 0)), False)
sketch7.addGeometry(Part.LineSegment(App.Vector(30, 7, 0), App.Vector(30, 18, 0)), False)
sketch7.addGeometry(Part.LineSegment(App.Vector(30, 18, 0), App.Vector(24, 20, 0)), False)
sketch7.addGeometry(Part.LineSegment(App.Vector(24, 45, 0), App.Vector(24, 30, 0)), False)
sketch7.addGeometry(Part.LineSegment(App.Vector(24, 30, 0), App.Vector(30, 32, 0)), False)
sketch7.addGeometry(Part.LineSegment(App.Vector(30, 32, 0), App.Vector(30, 43, 0)), False)
sketch7.addGeometry(Part.LineSegment(App.Vector(30, 43, 0), App.Vector(24, 45, 0)), False)
sketch7.addGeometry(Part.LineSegment(App.Vector(24, 70, 0), App.Vector(24, 55, 0)), False)
sketch7.addGeometry(Part.LineSegment(App.Vector(24, 55, 0), App.Vector(30, 57, 0)), False)
sketch7.addGeometry(Part.LineSegment(App.Vector(30, 57, 0), App.Vector(30, 68, 0)), False)
sketch7.addGeometry(Part.LineSegment(App.Vector(30, 68, 0), App.Vector(24, 70, 0)), False)
sketch7.addGeometry(Part.LineSegment(App.Vector(24, 95, 0), App.Vector(24, 80, 0)), False)
sketch7.addGeometry(Part.LineSegment(App.Vector(24, 80, 0), App.Vector(30, 82, 0)), False)
sketch7.addGeometry(Part.LineSegment(App.Vector(30, 82, 0), App.Vector(30, 93, 0)), False)
sketch7.addGeometry(Part.LineSegment(App.Vector(30, 93, 0), App.Vector(24, 95, 0)), False)
sketch7.addGeometry(Part.LineSegment(App.Vector(24, 120, 0), App.Vector(24, 105, 0)), False)
sketch7.addGeometry(Part.LineSegment(App.Vector(24, 105, 0), App.Vector(30, 107, 0)), False)
sketch7.addGeometry(Part.LineSegment(App.Vector(30, 107, 0), App.Vector(30, 118, 0)), False)
sketch7.addGeometry(Part.LineSegment(App.Vector(30, 118, 0), App.Vector(24, 120, 0)), False)
sketch7.addGeometry(Part.LineSegment(App.Vector(24, 145, 0), App.Vector(24, 130, 0)), False)
sketch7.addGeometry(Part.LineSegment(App.Vector(24, 130, 0), App.Vector(30, 132, 0)), False)
sketch7.addGeometry(Part.LineSegment(App.Vector(30, 132, 0), App.Vector(30, 143, 0)), False)
sketch7.addGeometry(Part.LineSegment(App.Vector(30, 143, 0), App.Vector(24, 145, 0)), False)
sketch7.addGeometry(Part.LineSegment(App.Vector(24, 170, 0), App.Vector(24, 155, 0)), False)
sketch7.addGeometry(Part.LineSegment(App.Vector(24, 155, 0), App.Vector(30, 157, 0)), False)
sketch7.addGeometry(Part.LineSegment(App.Vector(30, 157, 0), App.Vector(30, 168, 0)), False)
sketch7.addGeometry(Part.LineSegment(App.Vector(30, 168, 0), App.Vector(24, 170, 0)), False)
sketch7.addGeometry(Part.LineSegment(App.Vector(24, 195, 0), App.Vector(24, 180, 0)), False)
sketch7.addGeometry(Part.LineSegment(App.Vector(24, 180, 0), App.Vector(30, 182, 0)), False)
sketch7.addGeometry(Part.LineSegment(App.Vector(30, 182, 0), App.Vector(30, 193, 0)), False)
sketch7.addGeometry(Part.LineSegment(App.Vector(30, 193, 0), App.Vector(24, 195, 0)), False)
sketch7.addConstraint(Sketcher.Constraint("Coincident", 0, 2, 1, 1))
sketch7.addConstraint(Sketcher.Constraint("Coincident", 1, 2, 2, 1))
sketch7.addConstraint(Sketcher.Constraint("Coincident", 2, 2, 3, 1))
sketch7.addConstraint(Sketcher.Constraint("Coincident", 3, 2, 0, 1))
sketch7.addConstraint(Sketcher.Constraint("Coincident", 4, 2, 5, 1))
sketch7.addConstraint(Sketcher.Constraint("Coincident", 5, 2, 6, 1))
sketch7.addConstraint(Sketcher.Constraint("Coincident", 6, 2, 7, 1))
sketch7.addConstraint(Sketcher.Constraint("Coincident", 7, 2, 4, 1))
sketch7.addConstraint(Sketcher.Constraint("Coincident", 8, 2, 9, 1))
sketch7.addConstraint(Sketcher.Constraint("Coincident", 9, 2, 10, 1))
sketch7.addConstraint(Sketcher.Constraint("Coincident", 10, 2, 11, 1))
sketch7.addConstraint(Sketcher.Constraint("Coincident", 11, 2, 8, 1))
sketch7.addConstraint(Sketcher.Constraint("Coincident", 12, 2, 13, 1))
sketch7.addConstraint(Sketcher.Constraint("Coincident", 13, 2, 14, 1))
sketch7.addConstraint(Sketcher.Constraint("Coincident", 14, 2, 15, 1))
sketch7.addConstraint(Sketcher.Constraint("Coincident", 15, 2, 12, 1))
sketch7.addConstraint(Sketcher.Constraint("Coincident", 16, 2, 17, 1))
sketch7.addConstraint(Sketcher.Constraint("Coincident", 17, 2, 18, 1))
sketch7.addConstraint(Sketcher.Constraint("Coincident", 18, 2, 19, 1))
sketch7.addConstraint(Sketcher.Constraint("Coincident", 19, 2, 16, 1))
sketch7.addConstraint(Sketcher.Constraint("Coincident", 20, 2, 21, 1))
sketch7.addConstraint(Sketcher.Constraint("Coincident", 21, 2, 22, 1))
sketch7.addConstraint(Sketcher.Constraint("Coincident", 22, 2, 23, 1))
sketch7.addConstraint(Sketcher.Constraint("Coincident", 23, 2, 20, 1))
sketch7.addConstraint(Sketcher.Constraint("Coincident", 24, 2, 25, 1))
sketch7.addConstraint(Sketcher.Constraint("Coincident", 25, 2, 26, 1))
sketch7.addConstraint(Sketcher.Constraint("Coincident", 26, 2, 27, 1))
sketch7.addConstraint(Sketcher.Constraint("Coincident", 27, 2, 24, 1))
sketch7.addConstraint(Sketcher.Constraint("Coincident", 28, 2, 29, 1))
sketch7.addConstraint(Sketcher.Constraint("Coincident", 29, 2, 30, 1))
sketch7.addConstraint(Sketcher.Constraint("Coincident", 30, 2, 31, 1))
sketch7.addConstraint(Sketcher.Constraint("Coincident", 31, 2, 28, 1))
sketch7.addConstraint(Sketcher.Constraint("Vertical", 0))
sketch7.addConstraint(Sketcher.Constraint("Vertical", 2))
sketch7.addConstraint(Sketcher.Constraint("Vertical", 4))
sketch7.addConstraint(Sketcher.Constraint("Vertical", 6))
sketch7.addConstraint(Sketcher.Constraint("Vertical", 8))
sketch7.addConstraint(Sketcher.Constraint("Vertical", 10))
sketch7.addConstraint(Sketcher.Constraint("Vertical", 12))
sketch7.addConstraint(Sketcher.Constraint("Vertical", 14))
sketch7.addConstraint(Sketcher.Constraint("Vertical", 16))
sketch7.addConstraint(Sketcher.Constraint("Vertical", 18))
sketch7.addConstraint(Sketcher.Constraint("Vertical", 20))
sketch7.addConstraint(Sketcher.Constraint("Vertical", 22))
sketch7.addConstraint(Sketcher.Constraint("Vertical", 24))
sketch7.addConstraint(Sketcher.Constraint("Vertical", 26))
sketch7.addConstraint(Sketcher.Constraint("Vertical", 28))
sketch7.addConstraint(Sketcher.Constraint("Vertical", 30))
sketch7.addConstraint(Sketcher.Constraint("Parallel", 1, 5))
sketch7.addConstraint(Sketcher.Constraint("Parallel", 3, 7))
sketch7.addConstraint(Sketcher.Constraint("Parallel", 5, 9))
sketch7.addConstraint(Sketcher.Constraint("Parallel", 7, 11))
sketch7.addConstraint(Sketcher.Constraint("Parallel", 9, 13))
sketch7.addConstraint(Sketcher.Constraint("Parallel", 11, 15))
sketch7.addConstraint(Sketcher.Constraint("Parallel", 13, 17))
sketch7.addConstraint(Sketcher.Constraint("Parallel", 15, 19))
sketch7.addConstraint(Sketcher.Constraint("Parallel", 17, 21))
sketch7.addConstraint(Sketcher.Constraint("Parallel", 19, 23))
sketch7.addConstraint(Sketcher.Constraint("Parallel", 21, 25))
sketch7.addConstraint(Sketcher.Constraint("Parallel", 23, 27))
sketch7.addConstraint(Sketcher.Constraint("Parallel", 25, 29))
sketch7.addConstraint(Sketcher.Constraint("Parallel", 27, 31))
sketch7.addConstraint(Sketcher.Constraint("Vertical", 3, 2, 4, 2))
sketch7.addConstraint(Sketcher.Constraint("Vertical", 2, 2, 5, 2))
sketch7.addConstraint(Sketcher.Constraint("Vertical", 7, 2, 8, 2))
sketch7.addConstraint(Sketcher.Constraint("Vertical", 6, 2, 9, 2))
sketch7.addConstraint(Sketcher.Constraint("Vertical", 11, 2, 12, 2))
sketch7.addConstraint(Sketcher.Constraint("Vertical", 10, 2, 13, 2))
sketch7.addConstraint(Sketcher.Constraint("Vertical", 15, 2, 16, 2))
sketch7.addConstraint(Sketcher.Constraint("Vertical", 14, 2, 17, 2))
sketch7.addConstraint(Sketcher.Constraint("Vertical", 19, 2, 20, 2))
sketch7.addConstraint(Sketcher.Constraint("Vertical", 18, 2, 21, 2))
sketch7.addConstraint(Sketcher.Constraint("Vertical", 23, 2, 24, 2))
sketch7.addConstraint(Sketcher.Constraint("Vertical", 22, 2, 25, 2))
sketch7.addConstraint(Sketcher.Constraint("Vertical", 27, 2, 28, 2))
sketch7.addConstraint(Sketcher.Constraint("Vertical", 26, 2, 29, 2))
sketch7.addConstraint(Sketcher.Constraint("Equal", 0, 4))
sketch7.addConstraint(Sketcher.Constraint("Equal", 4, 8))
sketch7.addConstraint(Sketcher.Constraint("Equal", 8, 12))
sketch7.addConstraint(Sketcher.Constraint("Equal", 12, 16))
sketch7.addConstraint(Sketcher.Constraint("Equal", 16, 20))
sketch7.addConstraint(Sketcher.Constraint("Equal", 20, 24))
sketch7.addConstraint(Sketcher.Constraint("Equal", 24, 28))
sketch7.addConstraint(Sketcher.Constraint("Equal", 1, 3))
sketch7.addConstraint(Sketcher.Constraint("DistanceY", 0, 2, 0, 1, Q("15.2 mm")))
sketch7.addConstraint(Sketcher.Constraint("DistanceY", 2, 1, 2, 2, Q("10.2 mm")))
sketch7.addConstraint(Sketcher.Constraint("DistanceX", -1, 1, 1, 2, Q("30 mm")))
sketch7.addConstraint(Sketcher.Constraint("DistanceY", 0, 2, 4, 2, Q("25 mm")))
sketch7.addConstraint(Sketcher.Constraint("DistanceY", 4, 2, 8, 2, Q("25 mm")))
sketch7.addConstraint(Sketcher.Constraint("DistanceY", 8, 2, 12, 2, Q("25 mm")))
sketch7.addConstraint(Sketcher.Constraint("DistanceY", 12, 2, 16, 2, Q("25 mm")))
sketch7.addConstraint(Sketcher.Constraint("DistanceY", 16, 2, 20, 2, Q("25 mm")))
sketch7.addConstraint(Sketcher.Constraint("DistanceY", 20, 2, 24, 2, Q("25 mm")))
sketch7.addConstraint(Sketcher.Constraint("DistanceY", 24, 2, 28, 2, Q("25 mm")))
sketch7.addConstraint(Sketcher.Constraint("DistanceX", -1, 1, 0, 2, Q("24.1 mm")))
sketch7.addConstraint(Sketcher.Constraint("DistanceY", -1, 1, 0, 2, Q("4.9 mm")))
pocket6 = body.newObject("PartDesign::Pocket", "Pocket005")
pocket6.Profile = sketch7
pocket6.Length = 10

# Sketch on XY plane
sketch8 = body.newObject("Sketcher::SketchObject", "Sketch007")
sketch8.AttachmentSupport = (doc.getObject("XY_Plane"), [""])
sketch8.MapMode = "FlatFace"
sketch8.AttachmentOffset = App.Placement(App.Vector(0, 0, 10), App.Rotation())
sketch8.addGeometry(Part.LineSegment(App.Vector(24, 200, 0), App.Vector(24, 0, 0)), False)
sketch8.addGeometry(Part.LineSegment(App.Vector(24, 0, 0), App.Vector(30, 0, 0)), False)
sketch8.addGeometry(Part.LineSegment(App.Vector(30, 0, 0), App.Vector(30, 200, 0)), False)
sketch8.addGeometry(Part.LineSegment(App.Vector(30, 200, 0), App.Vector(24, 200, 0)), False)
sketch8.addConstraint(Sketcher.Constraint("Coincident", 0, 2, 1, 1))
sketch8.addConstraint(Sketcher.Constraint("Coincident", 1, 2, 2, 1))
sketch8.addConstraint(Sketcher.Constraint("Coincident", 2, 2, 3, 1))
sketch8.addConstraint(Sketcher.Constraint("Coincident", 3, 2, 0, 1))
sketch8.addConstraint(Sketcher.Constraint("Vertical", 0))
sketch8.addConstraint(Sketcher.Constraint("Horizontal", 1))
sketch8.addConstraint(Sketcher.Constraint("Vertical", 2))
sketch8.addConstraint(Sketcher.Constraint("Horizontal", 3))
sketch8.addConstraint(Sketcher.Constraint("PointOnObject", 0, 2, -1))
sketch8.addConstraint(Sketcher.Constraint("DistanceY", 0, 2, 0, 1, Q("200 mm")))
sketch8.addConstraint(Sketcher.Constraint("DistanceX", 1, 1, 1, 2, Q("5.9 mm")))
sketch8.addConstraint(Sketcher.Constraint("DistanceX", -1, 1, 1, 2, Q("30 mm")))
pocket7 = body.newObject("PartDesign::Pocket", "Pocket006")
pocket7.Profile = sketch8
pocket7.Length = 3

# Sketch on XY plane
sketch9 = body.newObject("Sketcher::SketchObject", "Sketch008")
sketch9.AttachmentSupport = (doc.getObject("XY_Plane"), [""])
sketch9.MapMode = "FlatFace"
sketch9.AttachmentOffset = App.Placement(App.Vector(0, 0, 10), App.Rotation())
sketch9.addGeometry(Part.LineSegment(App.Vector(23, 6, 0), App.Vector(7, 6, 0)), False)
sketch9.addGeometry(Part.LineSegment(App.Vector(7, 6, 0), App.Vector(10, 0, 0)), False)
sketch9.addGeometry(Part.LineSegment(App.Vector(10, 0, 0), App.Vector(20, 0, 0)), False)
sketch9.addGeometry(Part.LineSegment(App.Vector(20, 0, 0), App.Vector(23, 6, 0)), False)
sketch9.addConstraint(Sketcher.Constraint("Coincident", 0, 2, 1, 1))
sketch9.addConstraint(Sketcher.Constraint("Coincident", 1, 2, 2, 1))
sketch9.addConstraint(Sketcher.Constraint("Coincident", 2, 2, 3, 1))
sketch9.addConstraint(Sketcher.Constraint("Coincident", 3, 2, 0, 1))
sketch9.addConstraint(Sketcher.Constraint("Horizontal", 0))
sketch9.addConstraint(Sketcher.Constraint("Horizontal", 2))
sketch9.addConstraint(Sketcher.Constraint("PointOnObject", 1, 2, -1))
sketch9.addConstraint(Sketcher.Constraint("Equal", 1, 3))
sketch9.addConstraint(Sketcher.Constraint("DistanceX", 0, 2, 0, 1, Q("15.2 mm")))
sketch9.addConstraint(Sketcher.Constraint("DistanceX", 2, 1, 2, 2, Q("10.2 mm")))
sketch9.addConstraint(Sketcher.Constraint("DistanceX", -1, 1, 0, 2, Q("7.4 mm")))
sketch9.addConstraint(Sketcher.Constraint("DistanceY", -1, 1, 0, 2, Q("6.1 mm")))
pocket8 = body.newObject("PartDesign::Pocket", "Pocket007")
pocket8.Profile = sketch9
pocket8.Length = 5.1

# Sketch on XY plane
sketch10 = body.newObject("Sketcher::SketchObject", "Sketch009")
sketch10.AttachmentSupport = (doc.getObject("XY_Plane"), [""])
sketch10.MapMode = "FlatFace"
sketch10.addGeometry(Part.LineSegment(App.Vector(0, 194, 0), App.Vector(0, 200, 0)), False)
sketch10.addGeometry(Part.LineSegment(App.Vector(0, 200, 0), App.Vector(30, 200, 0)), False)
sketch10.addGeometry(Part.LineSegment(App.Vector(30, 200, 0), App.Vector(30, 194, 0)), False)
sketch10.addGeometry(Part.LineSegment(App.Vector(30, 194, 0), App.Vector(0, 194, 0)), False)
sketch10.addConstraint(Sketcher.Constraint("Coincident", 0, 2, 1, 1))
sketch10.addConstraint(Sketcher.Constraint("Coincident", 1, 2, 2, 1))
sketch10.addConstraint(Sketcher.Constraint("Coincident", 2, 2, 3, 1))
sketch10.addConstraint(Sketcher.Constraint("Coincident", 3, 2, 0, 1))
sketch10.addConstraint(Sketcher.Constraint("Vertical", 0))
sketch10.addConstraint(Sketcher.Constraint("Horizontal", 1))
sketch10.addConstraint(Sketcher.Constraint("Vertical", 2))
sketch10.addConstraint(Sketcher.Constraint("Horizontal", 3))
sketch10.addConstraint(Sketcher.Constraint("PointOnObject", 0, 2, -2))
sketch10.addConstraint(Sketcher.Constraint("DistanceX", 1, 1, 1, 2, Q("30 mm")))
sketch10.addConstraint(Sketcher.Constraint("DistanceY", 0, 1, 0, 2, Q("6.1 mm")))
sketch10.addConstraint(Sketcher.Constraint("DistanceY", -1, 1, 0, 2, Q("200 mm")))
pocket9 = body.newObject("PartDesign::Pocket", "Pocket008")
pocket9.Profile = sketch10
pocket9.Length = 5.1
pocket9.Reversed = True

# Sketch on XY plane
sketch11 = body.newObject("Sketcher::SketchObject", "Sketch010")
sketch11.AttachmentSupport = (doc.getObject("XY_Plane"), [""])
sketch11.MapMode = "FlatFace"
sketch11.AttachmentOffset = App.Placement(App.Vector(0, 0, 10), App.Rotation())
sketch11.addGeometry(Part.LineSegment(App.Vector(10.1, 194.1, 0), App.Vector(7.6, 200, 0)), False)
sketch11.addGeometry(Part.LineSegment(App.Vector(7.6, 200, 0), App.Vector(0, 200, 0)), False)
sketch11.addGeometry(Part.LineSegment(App.Vector(0, 200, 0), App.Vector(0, 194.1, 0)), False)
sketch11.addGeometry(Part.LineSegment(App.Vector(0, 194.1, 0), App.Vector(10.1, 194.1, 0)), False)
sketch11.addGeometry(Part.LineSegment(App.Vector(22.4, 200, 0), App.Vector(19.9, 194.1, 0)), False)
sketch11.addGeometry(Part.LineSegment(App.Vector(19.9, 194.1, 0), App.Vector(23.9, 194.1, 0)), False)
sketch11.addGeometry(Part.LineSegment(App.Vector(23.9, 194.1, 0), App.Vector(23.9, 200, 0)), False)
sketch11.addGeometry(Part.LineSegment(App.Vector(23.9, 200, 0), App.Vector(22.4, 200, 0)), False)
sketch11.addConstraint(Sketcher.Constraint("Coincident", 0, 2, 1, 1))
sketch11.addConstraint(Sketcher.Constraint("Coincident", 1, 2, 2, 1))
sketch11.addConstraint(Sketcher.Constraint("Coincident", 2, 2, 3, 1))
sketch11.addConstraint(Sketcher.Constraint("Coincident", 3, 2, 0, 1))
sketch11.addConstraint(Sketcher.Constraint("Coincident", 4, 2, 5, 1))
sketch11.addConstraint(Sketcher.Constraint("Coincident", 5, 2, 6, 1))
sketch11.addConstraint(Sketcher.Constraint("Coincident", 6, 2, 7, 1))
sketch11.addConstraint(Sketcher.Constraint("Coincident", 7, 2, 4, 1))
sketch11.addConstraint(Sketcher.Constraint("Horizontal", 1))
sketch11.addConstraint(Sketcher.Constraint("Vertical", 2))
sketch11.addConstraint(Sketcher.Constraint("Horizontal", 3))
sketch11.addConstraint(Sketcher.Constraint("Horizontal", 5))
sketch11.addConstraint(Sketcher.Constraint("Vertical", 6))
sketch11.addConstraint(Sketcher.Constraint("Horizontal", 7))
sketch11.addConstraint(Sketcher.Constraint("PointOnObject", 1, 2, -2))
sketch11.addConstraint(Sketcher.Constraint("Horizontal", 3, 2, 4, 2))
sketch11.addConstraint(Sketcher.Constraint("Horizontal", 1, 2, 6, 2))
sketch11.addConstraint(Sketcher.Constraint("Equal", 0, 4))
sketch11.addConstraint(Sketcher.Constraint("DistanceX", 5, 1, 5, 2, Q("4 mm")))
sketch11.addConstraint(Sketcher.Constraint("DistanceX", 1, 2, 1, 1, Q("7.6 mm")))
sketch11.addConstraint(Sketcher.Constraint("DistanceX", 3, 1, 3, 2, Q("10.1 mm")))
sketch11.addConstraint(Sketcher.Constraint("DistanceY", 2, 2, 2, 1, Q("5.9 mm")))
sketch11.addConstraint(Sketcher.Constraint("DistanceY", -1, 1, 0, 2, Q("200 mm")))
sketch11.addConstraint(Sketcher.Constraint("DistanceX", -1, 1, 4, 2, Q("19.9 mm")))
pocket10 = body.newObject("PartDesign::Pocket", "Pocket009")
pocket10.Profile = sketch11
pocket10.Length = 5

doc.recompute()
